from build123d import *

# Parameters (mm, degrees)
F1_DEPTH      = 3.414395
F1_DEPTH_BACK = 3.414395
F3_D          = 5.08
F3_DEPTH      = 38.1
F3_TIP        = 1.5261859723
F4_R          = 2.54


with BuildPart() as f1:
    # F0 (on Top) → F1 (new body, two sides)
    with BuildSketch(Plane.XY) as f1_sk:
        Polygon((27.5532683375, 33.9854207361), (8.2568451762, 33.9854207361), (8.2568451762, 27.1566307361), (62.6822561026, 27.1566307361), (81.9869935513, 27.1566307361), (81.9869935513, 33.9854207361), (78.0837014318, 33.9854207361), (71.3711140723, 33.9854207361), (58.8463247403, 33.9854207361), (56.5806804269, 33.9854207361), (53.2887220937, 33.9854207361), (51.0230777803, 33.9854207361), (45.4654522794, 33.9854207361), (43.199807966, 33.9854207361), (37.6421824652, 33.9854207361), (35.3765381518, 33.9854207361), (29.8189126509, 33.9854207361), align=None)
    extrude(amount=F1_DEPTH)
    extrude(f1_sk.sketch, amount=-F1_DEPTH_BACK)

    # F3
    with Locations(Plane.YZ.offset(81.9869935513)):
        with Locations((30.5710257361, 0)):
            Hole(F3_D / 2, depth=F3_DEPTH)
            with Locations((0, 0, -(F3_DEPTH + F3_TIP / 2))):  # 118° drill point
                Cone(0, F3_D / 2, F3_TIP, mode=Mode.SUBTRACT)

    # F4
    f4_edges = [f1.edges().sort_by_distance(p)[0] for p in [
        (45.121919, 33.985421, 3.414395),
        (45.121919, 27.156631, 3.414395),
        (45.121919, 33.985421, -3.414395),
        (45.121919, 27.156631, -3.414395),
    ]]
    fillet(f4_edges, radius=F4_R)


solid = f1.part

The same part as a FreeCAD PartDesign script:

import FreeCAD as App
import Part
import Sketcher
Q = App.Units.Quantity


def edges_at(feature, points):
    """Names of the edges that pass closest to the given points."""
    edges = feature.Shape.Edges
    near = lambda p: min(range(len(edges)), key=lambda i: edges[i].distToShape(Part.Vertex(*p))[0])
    return sorted({f"Edge{near(p) + 1}" for p in points})


def add_polygon(sketch, points):
    """Adds a closed chain of lines whose ends are joined by coincident constraints."""
    first, n = sketch.GeometryCount, len(points)
    for a, b in zip(points, points[1:] + points[:1]):
        sketch.addGeometry(Part.LineSegment(App.Vector(*a, 0), App.Vector(*b, 0)), False)
    for i in range(n):
        sketch.addConstraint(Sketcher.Constraint("Coincident", first + i, 2, first + (i + 1) % n, 1))

doc = App.newDocument("Part")
body = doc.addObject("PartDesign::Body", "Body")

sketch1 = body.newObject("Sketcher::SketchObject", "Sketch")
sketch1.AttachmentSupport = (doc.getObject("XY_Plane"), [""])
sketch1.MapMode = "FlatFace"
add_polygon(sketch1, [(8.256845, 33.985421), (8.256845, 27.156631), (81.986994, 27.156631), (81.986994, 33.985421)])
sketch1.addConstraint([
    Sketcher.Constraint("Vertical", 0),
    Sketcher.Constraint("Horizontal", 1),
    Sketcher.Constraint("Vertical", 2),
    Sketcher.Constraint("Horizontal", 3),
    Sketcher.Constraint("DistanceX", 1, 1, 1, 2, 73.730148),
    Sketcher.Constraint("DistanceY", 0, 2, 0, 1, 6.82879),
    Sketcher.Constraint("DistanceY", -1, 1, 0, 2, 27.156631),
    Sketcher.Constraint("DistanceX", -1, 1, 0, 2, 8.256845),
])
pad1 = body.newObject("PartDesign::Pad", "Pad")
pad1.Profile = sketch1
pad1.Type = "TwoLengths"
pad1.Length = 3.414395
pad1.Length2 = 3.414395

sketch2 = body.newObject("Sketcher::SketchObject", "Sketch001")
sketch2.AttachmentSupport = (doc.getObject("YZ_Plane"), [""])
sketch2.MapMode = "FlatFace"
sketch2.AttachmentOffset = App.Placement(App.Vector(0, 0, 81.986994), App.Rotation())
sketch2.addGeometry(Part.Circle(App.Vector(30.571026, 0, 0), App.Vector(0, 0, 1), 2.54), False)
sketch2.addConstraint([
    Sketcher.Constraint("PointOnObject", 0, 3, -1),
    Sketcher.Constraint("Diameter", 0, Q("0.2 in")),
    Sketcher.Constraint("DistanceX", -1, 1, 0, 3, 30.571026),
])
doc.recompute()
hole = body.newObject("PartDesign::Hole", "Hole")
hole.Profile = sketch2
hole.ThreadType = "None"
hole.Diameter = Q("0.2 in")
hole.DepthType = "Dimension"
hole.Depth = Q("1.5 in")
hole.DrillPoint = "Angled"
hole.DrillPointAngle = 118
doc.recompute()

fillet = body.newObject("PartDesign::Fillet", "Fillet")
fillet.Base = (hole, edges_at(hole, [
    (45.122, 33.985, 3.414),
    (45.122, 27.157, 3.414),
    (45.122, 33.985, -3.414),
    (45.122, 27.157, -3.414),
]))
fillet.Radius = Q("0.1 in")

doc.recompute()
